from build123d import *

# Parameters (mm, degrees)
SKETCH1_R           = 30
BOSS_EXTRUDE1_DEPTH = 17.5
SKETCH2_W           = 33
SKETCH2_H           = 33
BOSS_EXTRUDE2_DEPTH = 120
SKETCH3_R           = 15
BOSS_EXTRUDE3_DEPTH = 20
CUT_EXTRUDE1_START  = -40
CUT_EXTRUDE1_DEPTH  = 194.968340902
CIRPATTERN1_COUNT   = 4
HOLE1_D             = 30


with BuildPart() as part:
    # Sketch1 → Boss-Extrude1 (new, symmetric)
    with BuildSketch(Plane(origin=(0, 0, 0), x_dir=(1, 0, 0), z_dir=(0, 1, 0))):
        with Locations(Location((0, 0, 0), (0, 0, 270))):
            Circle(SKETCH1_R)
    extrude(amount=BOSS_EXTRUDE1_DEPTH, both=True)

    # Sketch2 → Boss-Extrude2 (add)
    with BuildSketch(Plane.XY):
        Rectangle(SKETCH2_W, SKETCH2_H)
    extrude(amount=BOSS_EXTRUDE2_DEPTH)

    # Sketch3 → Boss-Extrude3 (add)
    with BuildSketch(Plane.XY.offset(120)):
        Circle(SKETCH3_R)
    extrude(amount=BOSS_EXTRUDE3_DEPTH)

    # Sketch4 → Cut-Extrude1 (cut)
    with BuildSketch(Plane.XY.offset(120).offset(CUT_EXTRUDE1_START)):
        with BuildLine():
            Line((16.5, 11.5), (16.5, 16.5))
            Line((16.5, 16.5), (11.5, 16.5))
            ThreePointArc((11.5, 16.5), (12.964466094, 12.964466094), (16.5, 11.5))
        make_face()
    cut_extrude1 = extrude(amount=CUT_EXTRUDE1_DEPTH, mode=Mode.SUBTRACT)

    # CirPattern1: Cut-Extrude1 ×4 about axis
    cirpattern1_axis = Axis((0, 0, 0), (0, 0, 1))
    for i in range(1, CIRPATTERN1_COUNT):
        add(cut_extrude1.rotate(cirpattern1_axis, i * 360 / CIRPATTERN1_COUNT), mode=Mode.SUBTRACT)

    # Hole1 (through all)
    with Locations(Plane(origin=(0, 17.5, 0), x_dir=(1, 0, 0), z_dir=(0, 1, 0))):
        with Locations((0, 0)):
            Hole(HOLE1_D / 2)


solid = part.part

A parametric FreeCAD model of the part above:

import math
import FreeCAD as App
import Part
import Sketcher

V = App.Vector
Q = App.Units.Quantity


def add_polygon(sketch, points):
    """Adds a closed chain of lines whose ends are joined by coincident constraints."""
    first, n = sketch.GeometryCount, len(points)
    for a, b in zip(points, points[1:] + points[:1]):
        sketch.addGeometry(Part.LineSegment(App.Vector(*a, 0), App.Vector(*b, 0)), False)
    for i in range(n):
        sketch.addConstraint(Sketcher.Constraint("Coincident", first + i, 2, first + (i + 1) % n, 1))

doc = App.newDocument("Part")
body = doc.addObject("PartDesign::Body", "Body")

# Sketch on XZ plane
sketch1 = doc.addObject("Sketcher::SketchObject", "Sketch")
body.addObject(sketch1)
sketch1.AttachmentSupport = (doc.XZ_Plane, [""])
sketch1.MapMode = "FlatFace"
sketch1.addGeometry(Part.Circle(V(0, 0, 0), V(0, 0, 1), 30), False)
sketch1.addConstraint([
    Sketcher.Constraint("Coincident", 0, 3, -1, 1),
    Sketcher.Constraint("Diameter", 0, Q("60 mm")),
])
pad1 = doc.addObject("PartDesign::Pad", "Pad")
body.addObject(pad1)
pad1.Profile = sketch1
pad1.Length = 35
pad1.Midplane = True

# Sketch on XY plane
sketch2 = doc.addObject("Sketcher::SketchObject", "Sketch001")
body.addObject(sketch2)
sketch2.AttachmentSupport = (doc.XY_Plane, [""])
sketch2.MapMode = "FlatFace"
add_polygon(sketch2, [(-16, 16), (-16, -16), (16, -16), (16, 16)])  # lines 0-3
sketch2.addConstraint([
    Sketcher.Constraint("Vertical", 0),
    Sketcher.Constraint("Horizontal", 1),
    Sketcher.Constraint("Vertical", 2),
    Sketcher.Constraint("Horizontal", 3),
    Sketcher.Constraint("Symmetric", 0, 2, 2, 2, -1, 1),
    Sketcher.Constraint("Equal", 3, 0),
    Sketcher.Constraint("DistanceX", 1, 1, 1, 2, Q("33 mm")),
])
pad2 = doc.addObject("PartDesign::Pad", "Pad001")
body.addObject(pad2)
pad2.Profile = sketch2
pad2.Length = 120

# Sketch on XY plane
sketch3 = doc.addObject("Sketcher::SketchObject", "Sketch002")
body.addObject(sketch3)
sketch3.AttachmentSupport = (doc.XY_Plane, [""])
sketch3.MapMode = "FlatFace"
sketch3.AttachmentOffset = App.Placement(V(0, 0, 120), App.Rotation())
sketch3.addGeometry(Part.Circle(V(0, 0, 0), V(0, 0, 1), 15), False)
sketch3.addConstraint([
    Sketcher.Constraint("Coincident", 0, 3, -1, 1),
    Sketcher.Constraint("Diameter", 0, Q("30 mm")),
])
pad3 = doc.addObject("PartDesign::Pad", "Pad002")
body.addObject(pad3)
pad3.Profile = sketch3
pad3.Length = 20

# Sketch on XY plane
sketch4 = doc.addObject("Sketcher::SketchObject", "Sketch003")
body.addObject(sketch4)
sketch4.AttachmentSupport = (doc.XY_Plane, [""])
sketch4.MapMode = "FlatFace"
sketch4.AttachmentOffset = App.Placement(V(0, 0, 80), App.Rotation())
sketch4.addGeometry([
    Part.LineSegment(V(16, 12, 0), V(16, 16, 0)),
    Part.LineSegment(V(16, 16, 0), V(12, 16, 0)),
    Part.ArcOfCircle(Part.Circle(V(16, 16, 0), V(0, 0, 1), 5), math.radians(180), math.radians(270)),
], False)
sketch4.addConstraint([
    Sketcher.Constraint("Coincident", 0, 2, 1, 1),
    Sketcher.Constraint("Coincident", 1, 2, 2, 1),
    Sketcher.Constraint("Coincident", 2, 2, 0, 1),
    Sketcher.Constraint("Vertical", 0),
    Sketcher.Constraint("Horizontal", 1),
    Sketcher.Constraint("Coincident", 0, 2, 2, 3),
    Sketcher.Constraint("Radius", 2, Q("5 mm")),
    Sketcher.Constraint("DistanceX", -1, 1, 2, 3, Q("16.5 mm")),
    Sketcher.Constraint("DistanceY", -1, 1, 2, 3, Q("16.5 mm")),
])
pocket1 = doc.addObject("PartDesign::Pocket", "Pocket")
body.addObject(pocket1)
pocket1.Profile = sketch4
pocket1.Length = 194.968341
pocket1.Reversed = True
doc.recompute()

polarpattern = doc.addObject("PartDesign::PolarPattern", "PolarPattern")
body.addObject(polarpattern)
polarpattern.Originals = [pocket1]
polarpattern.Axis = (doc.Z_Axis, [""])
polarpattern.Angle = 360
polarpattern.Occurrences = 4
body.Tip = polarpattern

# Sketch on XZ plane
sketch5 = doc.addObject("Sketcher::SketchObject", "Sketch004")
body.addObject(sketch5)
sketch5.AttachmentSupport = (doc.XZ_Plane, [""])
sketch5.MapMode = "FlatFace"
sketch5.AttachmentOffset = App.Placement(V(0, 0, -17.5), App.Rotation())
sketch5.addGeometry(Part.Circle(V(0, 0, 0), V(0, 0, 1), 15), False)
sketch5.addConstraint([
    Sketcher.Constraint("Coincident", 0, 3, -1, 1),
    Sketcher.Constraint("Diameter", 0, Q("30 mm")),
])
doc.recompute()
hole = doc.addObject("PartDesign::Hole", "Hole")
body.addObject(hole)
hole.Profile = sketch5
hole.ThreadType = "None"
hole.Diameter = 30
hole.DepthType = "ThroughAll"
hole.Reversed = True

doc.recompute()
